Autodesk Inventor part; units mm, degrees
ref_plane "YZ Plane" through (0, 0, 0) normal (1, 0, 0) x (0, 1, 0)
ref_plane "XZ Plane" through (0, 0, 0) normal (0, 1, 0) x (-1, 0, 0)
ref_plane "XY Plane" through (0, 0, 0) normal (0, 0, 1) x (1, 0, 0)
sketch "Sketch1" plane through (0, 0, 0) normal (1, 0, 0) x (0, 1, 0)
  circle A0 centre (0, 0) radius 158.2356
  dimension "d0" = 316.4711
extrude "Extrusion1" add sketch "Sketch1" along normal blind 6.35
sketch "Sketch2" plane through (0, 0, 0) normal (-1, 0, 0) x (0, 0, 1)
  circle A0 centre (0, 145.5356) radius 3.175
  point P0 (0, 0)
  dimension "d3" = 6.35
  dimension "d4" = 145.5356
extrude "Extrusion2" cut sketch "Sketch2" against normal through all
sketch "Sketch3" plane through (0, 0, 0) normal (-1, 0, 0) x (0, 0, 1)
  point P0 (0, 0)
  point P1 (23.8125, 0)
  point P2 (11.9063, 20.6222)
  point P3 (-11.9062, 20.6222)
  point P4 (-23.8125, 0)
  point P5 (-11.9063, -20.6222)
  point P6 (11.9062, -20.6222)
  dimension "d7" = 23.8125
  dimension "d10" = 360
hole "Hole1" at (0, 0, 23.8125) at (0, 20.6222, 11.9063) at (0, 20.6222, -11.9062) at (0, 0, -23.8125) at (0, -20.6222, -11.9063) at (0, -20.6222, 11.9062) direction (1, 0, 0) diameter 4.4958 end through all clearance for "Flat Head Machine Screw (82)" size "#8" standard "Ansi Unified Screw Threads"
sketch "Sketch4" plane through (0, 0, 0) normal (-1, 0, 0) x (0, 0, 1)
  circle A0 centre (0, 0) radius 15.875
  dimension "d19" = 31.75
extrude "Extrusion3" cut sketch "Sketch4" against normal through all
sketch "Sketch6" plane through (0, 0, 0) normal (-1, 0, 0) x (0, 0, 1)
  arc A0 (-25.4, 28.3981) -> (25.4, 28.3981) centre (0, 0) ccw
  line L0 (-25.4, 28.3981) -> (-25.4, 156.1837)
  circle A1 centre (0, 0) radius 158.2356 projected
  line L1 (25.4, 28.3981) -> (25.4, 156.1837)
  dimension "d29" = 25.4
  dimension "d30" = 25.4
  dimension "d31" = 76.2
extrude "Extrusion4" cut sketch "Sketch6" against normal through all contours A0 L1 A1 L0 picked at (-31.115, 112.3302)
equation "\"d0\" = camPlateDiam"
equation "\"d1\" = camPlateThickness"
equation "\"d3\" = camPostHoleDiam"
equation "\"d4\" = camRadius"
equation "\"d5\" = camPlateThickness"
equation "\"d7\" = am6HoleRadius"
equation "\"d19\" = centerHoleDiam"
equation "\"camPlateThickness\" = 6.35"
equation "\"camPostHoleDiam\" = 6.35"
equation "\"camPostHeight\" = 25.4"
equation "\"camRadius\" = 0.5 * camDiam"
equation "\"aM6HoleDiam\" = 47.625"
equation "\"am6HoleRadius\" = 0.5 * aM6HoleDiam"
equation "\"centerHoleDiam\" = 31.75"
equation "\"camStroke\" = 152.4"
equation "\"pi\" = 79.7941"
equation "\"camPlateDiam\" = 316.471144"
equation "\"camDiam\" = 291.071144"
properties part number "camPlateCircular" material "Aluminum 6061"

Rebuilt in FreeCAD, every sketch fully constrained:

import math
import FreeCAD as App
import Part
import Sketcher
from FreeCAD import Vector
Q = App.Units.Quantity

doc = App.newDocument("Part")
params = doc.addObject("Spreadsheet::Sheet", "Params")
for row, (alias, value) in enumerate([
    ("pad1_length", "0.25 in"),
    ("sketch2_diameter", "0.25 in"),
    ("sketch3_diameter", "0.177 in"),
    ("hole_diameter", "0.177 in"),
    ("sketch4_diameter", "1.25 in"),
    ("sketch5_radius", "1.5 in"),
], start=1):
    params.set(f"A{row}", alias)
    params.set(f"B{row}", "=" + value)
    params.setAlias(f"B{row}", alias)

body = doc.addObject("PartDesign::Body", "Body")

sketch1 = body.newObject("Sketcher::SketchObject", "Sketch")
sketch1.AttachmentSupport = (doc.getObject("YZ_Plane"), [""])
sketch1.MapMode = "FlatFace"
sketch1.addGeometry(Part.Circle(Vector(0, 0, 0), Vector(0, 0, 1), 158), False)
sketch1.addConstraint([
    Sketcher.Constraint("Coincident", 0, 3, -1, 1),
    Sketcher.Constraint("Diameter", 0, Q("12.4595 in")),
])
pad1 = body.newObject("PartDesign::Pad", "Pad")
pad1.Profile = sketch1
pad1.setExpression("Length", "Params.pad1_length")

sketch2 = body.newObject("Sketcher::SketchObject", "Sketch001")
sketch2.AttachmentSupport = (doc.getObject("YZ_Plane"), [""])
sketch2.MapMode = "FlatFace"
sketch2.addGeometry(Part.Circle(Vector(145.5, 0, 0), Vector(0, 0, 1), 3.2), False)
sketch2.addConstraint([
    Sketcher.Constraint("PointOnObject", 0, 3, -1),
    Sketcher.Constraint("Diameter", 0, Q("0.25 in")),
    Sketcher.Constraint("DistanceX", -1, 1, 0, 3, Q("145.5356 mm")),
])
sketch2.setExpression("Constraints[1]", "Params.sketch2_diameter")
pocket1 = body.newObject("PartDesign::Pocket", "Pocket")
pocket1.Profile = sketch2
pocket1.Type = "ThroughAll"
pocket1.Reversed = True

sketch3 = body.newObject("Sketcher::SketchObject", "Sketch002")
sketch3.AttachmentSupport = (doc.getObject("YZ_Plane"), [""])
sketch3.MapMode = "FlatFace"
sketch3.addGeometry([
    Part.Circle(Vector(0, 23.8, 0), Vector(0, 0, 1), 2.2),
    Part.Circle(Vector(20.6, 11.9, 0), Vector(0, 0, 1), 2.2),
    Part.Circle(Vector(20.6, -11.9, 0), Vector(0, 0, 1), 2.2),
    Part.Circle(Vector(0, -23.8, 0), Vector(0, 0, 1), 2.2),
    Part.Circle(Vector(-20.6, -11.9, 0), Vector(0, 0, 1), 2.2),
    Part.Circle(Vector(-20.6, 11.9, 0), Vector(0, 0, 1), 2.2),
], False)
sketch3.addConstraint([
    Sketcher.Constraint("Equal", 0, 1),
    Sketcher.Constraint("Equal", 1, 2),
    Sketcher.Constraint("Equal", 2, 3),
    Sketcher.Constraint("Equal", 3, 4),
    Sketcher.Constraint("Equal", 4, 5),
    Sketcher.Constraint("Symmetric", 0, 3, 3, 3, -1, 1),
    Sketcher.Constraint("Symmetric", 1, 3, 4, 3, -1, 1),
    Sketcher.Constraint("Symmetric", 2, 3, 5, 3, -1, 1),
    Sketcher.Constraint("Symmetric", 2, 3, 4, 3, -2),
    Sketcher.Constraint("PointOnObject", 0, 3, -2),
    Sketcher.Constraint("Diameter", 0, Q("0.177 in")),
    Sketcher.Constraint("DistanceY", -1, 1, 0, 3, Q("0.9375 in")),
    Sketcher.Constraint("DistanceY", -1, 1, 1, 3, Q("0.468752 in")),
    Sketcher.Constraint("DistanceX", -1, 1, 1, 3, Q("0.8119 in")),
])
sketch3.setExpression("Constraints[10]", "Params.sketch3_diameter")
doc.recompute()
hole = body.newObject("PartDesign::Hole", "Hole")
hole.Profile = sketch3
hole.ThreadType = "None"
hole.setExpression("Diameter", "Params.hole_diameter")
hole.DepthType = "ThroughAll"
hole.Reversed = True

sketch4 = body.newObject("Sketcher::SketchObject", "Sketch003")
sketch4.AttachmentSupport = (doc.getObject("YZ_Plane"), [""])
sketch4.MapMode = "FlatFace"
sketch4.addGeometry(Part.Circle(Vector(0, 0, 0), Vector(0, 0, 1), 16), False)
sketch4.addConstraint([
    Sketcher.Constraint("Coincident", 0, 3, -1, 1),
    Sketcher.Constraint("Diameter", 0, Q("1.25 in")),
])
sketch4.setExpression("Constraints[1]", "Params.sketch4_diameter")
pocket2 = body.newObject("PartDesign::Pocket", "Pocket001")
pocket2.Profile = sketch4
pocket2.Type = "ThroughAll"
pocket2.Reversed = True

sketch5 = body.newObject("Sketcher::SketchObject", "Sketch004")
sketch5.AttachmentSupport = (doc.getObject("YZ_Plane"), [""])
sketch5.MapMode = "FlatFace"
sketch5.addGeometry([
    Part.ArcOfCircle(Part.Circle(Vector(0, 0, 0), Vector(0, 0, 1), 38), math.radians(42), math.radians(318)),
    Part.LineSegment(Vector(28, -25, 0), Vector(156, -25, 0)),
    Part.ArcOfCircle(Part.Circle(Vector(0, 0, 0), Vector(0, 0, 1), 158), math.radians(9), math.radians(351)),
    Part.LineSegment(Vector(156, 25, 0), Vector(28, 25, 0)),
], False)
sketch5.addConstraint([
    Sketcher.Constraint("Coincident", 0, 2, 1, 1),
    Sketcher.Constraint("Coincident", 1, 2, 2, 2),
    Sketcher.Constraint("Coincident", 2, 1, 3, 1),
    Sketcher.Constraint("Coincident", 3, 2, 0, 1),
    Sketcher.Constraint("Horizontal", 1),
    Sketcher.Constraint("Horizontal", 3),
    Sketcher.Constraint("Coincident", 0, 3, -1, 1),
    Sketcher.Constraint("Coincident", 2, 3, -1, 1),
    Sketcher.Constraint("Vertical", 1, 2, 2, 1),
    Sketcher.Constraint("Radius", 0, Q("1.5 in")),
    Sketcher.Constraint("DistanceY", 0, 2, -1, 1, Q("1 in")),
    Sketcher.Constraint("Radius", 2, Q("158.2356 mm")),
])
sketch5.setExpression("Constraints[9]", "Params.sketch5_radius")
pocket3 = body.newObject("PartDesign::Pocket", "Pocket002")
pocket3.Profile = sketch5
pocket3.Type = "ThroughAll"
pocket3.Reversed = True

doc.recompute()
